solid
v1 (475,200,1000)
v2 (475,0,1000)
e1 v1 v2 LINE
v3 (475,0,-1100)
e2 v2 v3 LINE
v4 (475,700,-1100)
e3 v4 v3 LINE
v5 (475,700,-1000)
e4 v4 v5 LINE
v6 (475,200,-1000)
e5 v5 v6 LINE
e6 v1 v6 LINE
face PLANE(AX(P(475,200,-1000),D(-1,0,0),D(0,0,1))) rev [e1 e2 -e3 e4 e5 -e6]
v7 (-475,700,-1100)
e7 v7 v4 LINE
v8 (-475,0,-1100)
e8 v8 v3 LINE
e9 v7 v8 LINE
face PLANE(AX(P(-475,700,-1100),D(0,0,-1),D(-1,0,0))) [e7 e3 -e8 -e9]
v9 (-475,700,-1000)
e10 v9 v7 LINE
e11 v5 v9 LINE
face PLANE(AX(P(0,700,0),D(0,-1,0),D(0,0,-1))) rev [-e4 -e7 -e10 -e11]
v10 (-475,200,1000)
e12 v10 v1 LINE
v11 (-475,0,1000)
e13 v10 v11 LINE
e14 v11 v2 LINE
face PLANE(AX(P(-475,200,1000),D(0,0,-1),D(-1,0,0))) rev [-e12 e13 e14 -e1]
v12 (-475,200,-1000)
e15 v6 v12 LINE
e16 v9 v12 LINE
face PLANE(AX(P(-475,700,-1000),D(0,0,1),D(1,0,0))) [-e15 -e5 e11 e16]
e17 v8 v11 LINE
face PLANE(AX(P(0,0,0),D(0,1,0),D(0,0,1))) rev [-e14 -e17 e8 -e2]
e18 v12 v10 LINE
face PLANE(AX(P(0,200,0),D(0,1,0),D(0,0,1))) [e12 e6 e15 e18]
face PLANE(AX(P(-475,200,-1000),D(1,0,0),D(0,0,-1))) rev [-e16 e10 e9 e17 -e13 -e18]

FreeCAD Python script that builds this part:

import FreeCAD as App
import Part
import Sketcher

V = App.Vector

doc = App.newDocument("Part")
body = doc.addObject("PartDesign::Body", "Body")

# Sketch on XZ plane
sketch1 = body.newObject("Sketcher::SketchObject", "Sketch")
sketch1.AttachmentSupport = (doc.getObject("XZ_Plane"), [""])
sketch1.MapMode = "FlatFace"
sketch1.addGeometry([
    Part.LineSegment(V(-475, -1000, 0), V(-475, 1000, 0)),
    Part.LineSegment(V(-475, 1000, 0), V(475, 1000, 0)),
    Part.LineSegment(V(475, 1000, 0), V(475, -1000, 0)),
    Part.LineSegment(V(475, -1000, 0), V(-475, -1000, 0)),
], False)
sketch1.addConstraint([
    Sketcher.Constraint("Coincident", 0, 2, 1, 1),
    Sketcher.Constraint("Coincident", 1, 2, 2, 1),
    Sketcher.Constraint("Coincident", 2, 2, 3, 1),
    Sketcher.Constraint("Coincident", 3, 2, 0, 1),
    Sketcher.Constraint("Vertical", 0),
    Sketcher.Constraint("Horizontal", 1),
    Sketcher.Constraint("Vertical", 2),
    Sketcher.Constraint("Horizontal", 3),
    Sketcher.Constraint("Symmetric", 0, 2, 2, 2, -1, 1),
    Sketcher.Constraint("DistanceX", 1, 1, 1, 2, 950.0),
    Sketcher.Constraint("DistanceY", 0, 1, 0, 2, 2000.0),
])
pad1 = body.newObject("PartDesign::Pad", "Pad")
pad1.Profile = sketch1
pad1.Length = 200
pad1.Reversed = True

# Sketch on XZ plane
sketch2 = body.newObject("Sketcher::SketchObject", "Sketch001")
sketch2.AttachmentSupport = (doc.getObject("XZ_Plane"), [""])
sketch2.MapMode = "FlatFace"
sketch2.addGeometry([
    Part.LineSegment(V(-475, -1000, 0), V(-475, -1100, 0)),
    Part.LineSegment(V(-475, -1100, 0), V(475, -1100, 0)),
    Part.LineSegment(V(475, -1100, 0), V(475, -1000, 0)),
    Part.LineSegment(V(475, -1000, 0), V(-475, -1000, 0)),
], False)
sketch2.addConstraint([
    Sketcher.Constraint("Coincident", 0, 2, 1, 1),
    Sketcher.Constraint("Coincident", 1, 2, 2, 1),
    Sketcher.Constraint("Coincident", 2, 2, 3, 1),
    Sketcher.Constraint("Coincident", 3, 2, 0, 1),
    Sketcher.Constraint("Vertical", 0),
    Sketcher.Constraint("Horizontal", 1),
    Sketcher.Constraint("Vertical", 2),
    Sketcher.Constraint("Horizontal", 3),
    Sketcher.Constraint("DistanceX", 1, 1, 1, 2, 950.0),
    Sketcher.Constraint("DistanceY", 0, 2, 0, 1, 100.0),
    Sketcher.Constraint("DistanceX", 0, 2, -1, 1, 475.0),
    Sketcher.Constraint("DistanceY", 0, 2, -1, 1, 1100.0),
])
pad2 = body.newObject("PartDesign::Pad", "Pad001")
pad2.Profile = sketch2
pad2.Length = 700
pad2.Reversed = True

doc.recompute()
